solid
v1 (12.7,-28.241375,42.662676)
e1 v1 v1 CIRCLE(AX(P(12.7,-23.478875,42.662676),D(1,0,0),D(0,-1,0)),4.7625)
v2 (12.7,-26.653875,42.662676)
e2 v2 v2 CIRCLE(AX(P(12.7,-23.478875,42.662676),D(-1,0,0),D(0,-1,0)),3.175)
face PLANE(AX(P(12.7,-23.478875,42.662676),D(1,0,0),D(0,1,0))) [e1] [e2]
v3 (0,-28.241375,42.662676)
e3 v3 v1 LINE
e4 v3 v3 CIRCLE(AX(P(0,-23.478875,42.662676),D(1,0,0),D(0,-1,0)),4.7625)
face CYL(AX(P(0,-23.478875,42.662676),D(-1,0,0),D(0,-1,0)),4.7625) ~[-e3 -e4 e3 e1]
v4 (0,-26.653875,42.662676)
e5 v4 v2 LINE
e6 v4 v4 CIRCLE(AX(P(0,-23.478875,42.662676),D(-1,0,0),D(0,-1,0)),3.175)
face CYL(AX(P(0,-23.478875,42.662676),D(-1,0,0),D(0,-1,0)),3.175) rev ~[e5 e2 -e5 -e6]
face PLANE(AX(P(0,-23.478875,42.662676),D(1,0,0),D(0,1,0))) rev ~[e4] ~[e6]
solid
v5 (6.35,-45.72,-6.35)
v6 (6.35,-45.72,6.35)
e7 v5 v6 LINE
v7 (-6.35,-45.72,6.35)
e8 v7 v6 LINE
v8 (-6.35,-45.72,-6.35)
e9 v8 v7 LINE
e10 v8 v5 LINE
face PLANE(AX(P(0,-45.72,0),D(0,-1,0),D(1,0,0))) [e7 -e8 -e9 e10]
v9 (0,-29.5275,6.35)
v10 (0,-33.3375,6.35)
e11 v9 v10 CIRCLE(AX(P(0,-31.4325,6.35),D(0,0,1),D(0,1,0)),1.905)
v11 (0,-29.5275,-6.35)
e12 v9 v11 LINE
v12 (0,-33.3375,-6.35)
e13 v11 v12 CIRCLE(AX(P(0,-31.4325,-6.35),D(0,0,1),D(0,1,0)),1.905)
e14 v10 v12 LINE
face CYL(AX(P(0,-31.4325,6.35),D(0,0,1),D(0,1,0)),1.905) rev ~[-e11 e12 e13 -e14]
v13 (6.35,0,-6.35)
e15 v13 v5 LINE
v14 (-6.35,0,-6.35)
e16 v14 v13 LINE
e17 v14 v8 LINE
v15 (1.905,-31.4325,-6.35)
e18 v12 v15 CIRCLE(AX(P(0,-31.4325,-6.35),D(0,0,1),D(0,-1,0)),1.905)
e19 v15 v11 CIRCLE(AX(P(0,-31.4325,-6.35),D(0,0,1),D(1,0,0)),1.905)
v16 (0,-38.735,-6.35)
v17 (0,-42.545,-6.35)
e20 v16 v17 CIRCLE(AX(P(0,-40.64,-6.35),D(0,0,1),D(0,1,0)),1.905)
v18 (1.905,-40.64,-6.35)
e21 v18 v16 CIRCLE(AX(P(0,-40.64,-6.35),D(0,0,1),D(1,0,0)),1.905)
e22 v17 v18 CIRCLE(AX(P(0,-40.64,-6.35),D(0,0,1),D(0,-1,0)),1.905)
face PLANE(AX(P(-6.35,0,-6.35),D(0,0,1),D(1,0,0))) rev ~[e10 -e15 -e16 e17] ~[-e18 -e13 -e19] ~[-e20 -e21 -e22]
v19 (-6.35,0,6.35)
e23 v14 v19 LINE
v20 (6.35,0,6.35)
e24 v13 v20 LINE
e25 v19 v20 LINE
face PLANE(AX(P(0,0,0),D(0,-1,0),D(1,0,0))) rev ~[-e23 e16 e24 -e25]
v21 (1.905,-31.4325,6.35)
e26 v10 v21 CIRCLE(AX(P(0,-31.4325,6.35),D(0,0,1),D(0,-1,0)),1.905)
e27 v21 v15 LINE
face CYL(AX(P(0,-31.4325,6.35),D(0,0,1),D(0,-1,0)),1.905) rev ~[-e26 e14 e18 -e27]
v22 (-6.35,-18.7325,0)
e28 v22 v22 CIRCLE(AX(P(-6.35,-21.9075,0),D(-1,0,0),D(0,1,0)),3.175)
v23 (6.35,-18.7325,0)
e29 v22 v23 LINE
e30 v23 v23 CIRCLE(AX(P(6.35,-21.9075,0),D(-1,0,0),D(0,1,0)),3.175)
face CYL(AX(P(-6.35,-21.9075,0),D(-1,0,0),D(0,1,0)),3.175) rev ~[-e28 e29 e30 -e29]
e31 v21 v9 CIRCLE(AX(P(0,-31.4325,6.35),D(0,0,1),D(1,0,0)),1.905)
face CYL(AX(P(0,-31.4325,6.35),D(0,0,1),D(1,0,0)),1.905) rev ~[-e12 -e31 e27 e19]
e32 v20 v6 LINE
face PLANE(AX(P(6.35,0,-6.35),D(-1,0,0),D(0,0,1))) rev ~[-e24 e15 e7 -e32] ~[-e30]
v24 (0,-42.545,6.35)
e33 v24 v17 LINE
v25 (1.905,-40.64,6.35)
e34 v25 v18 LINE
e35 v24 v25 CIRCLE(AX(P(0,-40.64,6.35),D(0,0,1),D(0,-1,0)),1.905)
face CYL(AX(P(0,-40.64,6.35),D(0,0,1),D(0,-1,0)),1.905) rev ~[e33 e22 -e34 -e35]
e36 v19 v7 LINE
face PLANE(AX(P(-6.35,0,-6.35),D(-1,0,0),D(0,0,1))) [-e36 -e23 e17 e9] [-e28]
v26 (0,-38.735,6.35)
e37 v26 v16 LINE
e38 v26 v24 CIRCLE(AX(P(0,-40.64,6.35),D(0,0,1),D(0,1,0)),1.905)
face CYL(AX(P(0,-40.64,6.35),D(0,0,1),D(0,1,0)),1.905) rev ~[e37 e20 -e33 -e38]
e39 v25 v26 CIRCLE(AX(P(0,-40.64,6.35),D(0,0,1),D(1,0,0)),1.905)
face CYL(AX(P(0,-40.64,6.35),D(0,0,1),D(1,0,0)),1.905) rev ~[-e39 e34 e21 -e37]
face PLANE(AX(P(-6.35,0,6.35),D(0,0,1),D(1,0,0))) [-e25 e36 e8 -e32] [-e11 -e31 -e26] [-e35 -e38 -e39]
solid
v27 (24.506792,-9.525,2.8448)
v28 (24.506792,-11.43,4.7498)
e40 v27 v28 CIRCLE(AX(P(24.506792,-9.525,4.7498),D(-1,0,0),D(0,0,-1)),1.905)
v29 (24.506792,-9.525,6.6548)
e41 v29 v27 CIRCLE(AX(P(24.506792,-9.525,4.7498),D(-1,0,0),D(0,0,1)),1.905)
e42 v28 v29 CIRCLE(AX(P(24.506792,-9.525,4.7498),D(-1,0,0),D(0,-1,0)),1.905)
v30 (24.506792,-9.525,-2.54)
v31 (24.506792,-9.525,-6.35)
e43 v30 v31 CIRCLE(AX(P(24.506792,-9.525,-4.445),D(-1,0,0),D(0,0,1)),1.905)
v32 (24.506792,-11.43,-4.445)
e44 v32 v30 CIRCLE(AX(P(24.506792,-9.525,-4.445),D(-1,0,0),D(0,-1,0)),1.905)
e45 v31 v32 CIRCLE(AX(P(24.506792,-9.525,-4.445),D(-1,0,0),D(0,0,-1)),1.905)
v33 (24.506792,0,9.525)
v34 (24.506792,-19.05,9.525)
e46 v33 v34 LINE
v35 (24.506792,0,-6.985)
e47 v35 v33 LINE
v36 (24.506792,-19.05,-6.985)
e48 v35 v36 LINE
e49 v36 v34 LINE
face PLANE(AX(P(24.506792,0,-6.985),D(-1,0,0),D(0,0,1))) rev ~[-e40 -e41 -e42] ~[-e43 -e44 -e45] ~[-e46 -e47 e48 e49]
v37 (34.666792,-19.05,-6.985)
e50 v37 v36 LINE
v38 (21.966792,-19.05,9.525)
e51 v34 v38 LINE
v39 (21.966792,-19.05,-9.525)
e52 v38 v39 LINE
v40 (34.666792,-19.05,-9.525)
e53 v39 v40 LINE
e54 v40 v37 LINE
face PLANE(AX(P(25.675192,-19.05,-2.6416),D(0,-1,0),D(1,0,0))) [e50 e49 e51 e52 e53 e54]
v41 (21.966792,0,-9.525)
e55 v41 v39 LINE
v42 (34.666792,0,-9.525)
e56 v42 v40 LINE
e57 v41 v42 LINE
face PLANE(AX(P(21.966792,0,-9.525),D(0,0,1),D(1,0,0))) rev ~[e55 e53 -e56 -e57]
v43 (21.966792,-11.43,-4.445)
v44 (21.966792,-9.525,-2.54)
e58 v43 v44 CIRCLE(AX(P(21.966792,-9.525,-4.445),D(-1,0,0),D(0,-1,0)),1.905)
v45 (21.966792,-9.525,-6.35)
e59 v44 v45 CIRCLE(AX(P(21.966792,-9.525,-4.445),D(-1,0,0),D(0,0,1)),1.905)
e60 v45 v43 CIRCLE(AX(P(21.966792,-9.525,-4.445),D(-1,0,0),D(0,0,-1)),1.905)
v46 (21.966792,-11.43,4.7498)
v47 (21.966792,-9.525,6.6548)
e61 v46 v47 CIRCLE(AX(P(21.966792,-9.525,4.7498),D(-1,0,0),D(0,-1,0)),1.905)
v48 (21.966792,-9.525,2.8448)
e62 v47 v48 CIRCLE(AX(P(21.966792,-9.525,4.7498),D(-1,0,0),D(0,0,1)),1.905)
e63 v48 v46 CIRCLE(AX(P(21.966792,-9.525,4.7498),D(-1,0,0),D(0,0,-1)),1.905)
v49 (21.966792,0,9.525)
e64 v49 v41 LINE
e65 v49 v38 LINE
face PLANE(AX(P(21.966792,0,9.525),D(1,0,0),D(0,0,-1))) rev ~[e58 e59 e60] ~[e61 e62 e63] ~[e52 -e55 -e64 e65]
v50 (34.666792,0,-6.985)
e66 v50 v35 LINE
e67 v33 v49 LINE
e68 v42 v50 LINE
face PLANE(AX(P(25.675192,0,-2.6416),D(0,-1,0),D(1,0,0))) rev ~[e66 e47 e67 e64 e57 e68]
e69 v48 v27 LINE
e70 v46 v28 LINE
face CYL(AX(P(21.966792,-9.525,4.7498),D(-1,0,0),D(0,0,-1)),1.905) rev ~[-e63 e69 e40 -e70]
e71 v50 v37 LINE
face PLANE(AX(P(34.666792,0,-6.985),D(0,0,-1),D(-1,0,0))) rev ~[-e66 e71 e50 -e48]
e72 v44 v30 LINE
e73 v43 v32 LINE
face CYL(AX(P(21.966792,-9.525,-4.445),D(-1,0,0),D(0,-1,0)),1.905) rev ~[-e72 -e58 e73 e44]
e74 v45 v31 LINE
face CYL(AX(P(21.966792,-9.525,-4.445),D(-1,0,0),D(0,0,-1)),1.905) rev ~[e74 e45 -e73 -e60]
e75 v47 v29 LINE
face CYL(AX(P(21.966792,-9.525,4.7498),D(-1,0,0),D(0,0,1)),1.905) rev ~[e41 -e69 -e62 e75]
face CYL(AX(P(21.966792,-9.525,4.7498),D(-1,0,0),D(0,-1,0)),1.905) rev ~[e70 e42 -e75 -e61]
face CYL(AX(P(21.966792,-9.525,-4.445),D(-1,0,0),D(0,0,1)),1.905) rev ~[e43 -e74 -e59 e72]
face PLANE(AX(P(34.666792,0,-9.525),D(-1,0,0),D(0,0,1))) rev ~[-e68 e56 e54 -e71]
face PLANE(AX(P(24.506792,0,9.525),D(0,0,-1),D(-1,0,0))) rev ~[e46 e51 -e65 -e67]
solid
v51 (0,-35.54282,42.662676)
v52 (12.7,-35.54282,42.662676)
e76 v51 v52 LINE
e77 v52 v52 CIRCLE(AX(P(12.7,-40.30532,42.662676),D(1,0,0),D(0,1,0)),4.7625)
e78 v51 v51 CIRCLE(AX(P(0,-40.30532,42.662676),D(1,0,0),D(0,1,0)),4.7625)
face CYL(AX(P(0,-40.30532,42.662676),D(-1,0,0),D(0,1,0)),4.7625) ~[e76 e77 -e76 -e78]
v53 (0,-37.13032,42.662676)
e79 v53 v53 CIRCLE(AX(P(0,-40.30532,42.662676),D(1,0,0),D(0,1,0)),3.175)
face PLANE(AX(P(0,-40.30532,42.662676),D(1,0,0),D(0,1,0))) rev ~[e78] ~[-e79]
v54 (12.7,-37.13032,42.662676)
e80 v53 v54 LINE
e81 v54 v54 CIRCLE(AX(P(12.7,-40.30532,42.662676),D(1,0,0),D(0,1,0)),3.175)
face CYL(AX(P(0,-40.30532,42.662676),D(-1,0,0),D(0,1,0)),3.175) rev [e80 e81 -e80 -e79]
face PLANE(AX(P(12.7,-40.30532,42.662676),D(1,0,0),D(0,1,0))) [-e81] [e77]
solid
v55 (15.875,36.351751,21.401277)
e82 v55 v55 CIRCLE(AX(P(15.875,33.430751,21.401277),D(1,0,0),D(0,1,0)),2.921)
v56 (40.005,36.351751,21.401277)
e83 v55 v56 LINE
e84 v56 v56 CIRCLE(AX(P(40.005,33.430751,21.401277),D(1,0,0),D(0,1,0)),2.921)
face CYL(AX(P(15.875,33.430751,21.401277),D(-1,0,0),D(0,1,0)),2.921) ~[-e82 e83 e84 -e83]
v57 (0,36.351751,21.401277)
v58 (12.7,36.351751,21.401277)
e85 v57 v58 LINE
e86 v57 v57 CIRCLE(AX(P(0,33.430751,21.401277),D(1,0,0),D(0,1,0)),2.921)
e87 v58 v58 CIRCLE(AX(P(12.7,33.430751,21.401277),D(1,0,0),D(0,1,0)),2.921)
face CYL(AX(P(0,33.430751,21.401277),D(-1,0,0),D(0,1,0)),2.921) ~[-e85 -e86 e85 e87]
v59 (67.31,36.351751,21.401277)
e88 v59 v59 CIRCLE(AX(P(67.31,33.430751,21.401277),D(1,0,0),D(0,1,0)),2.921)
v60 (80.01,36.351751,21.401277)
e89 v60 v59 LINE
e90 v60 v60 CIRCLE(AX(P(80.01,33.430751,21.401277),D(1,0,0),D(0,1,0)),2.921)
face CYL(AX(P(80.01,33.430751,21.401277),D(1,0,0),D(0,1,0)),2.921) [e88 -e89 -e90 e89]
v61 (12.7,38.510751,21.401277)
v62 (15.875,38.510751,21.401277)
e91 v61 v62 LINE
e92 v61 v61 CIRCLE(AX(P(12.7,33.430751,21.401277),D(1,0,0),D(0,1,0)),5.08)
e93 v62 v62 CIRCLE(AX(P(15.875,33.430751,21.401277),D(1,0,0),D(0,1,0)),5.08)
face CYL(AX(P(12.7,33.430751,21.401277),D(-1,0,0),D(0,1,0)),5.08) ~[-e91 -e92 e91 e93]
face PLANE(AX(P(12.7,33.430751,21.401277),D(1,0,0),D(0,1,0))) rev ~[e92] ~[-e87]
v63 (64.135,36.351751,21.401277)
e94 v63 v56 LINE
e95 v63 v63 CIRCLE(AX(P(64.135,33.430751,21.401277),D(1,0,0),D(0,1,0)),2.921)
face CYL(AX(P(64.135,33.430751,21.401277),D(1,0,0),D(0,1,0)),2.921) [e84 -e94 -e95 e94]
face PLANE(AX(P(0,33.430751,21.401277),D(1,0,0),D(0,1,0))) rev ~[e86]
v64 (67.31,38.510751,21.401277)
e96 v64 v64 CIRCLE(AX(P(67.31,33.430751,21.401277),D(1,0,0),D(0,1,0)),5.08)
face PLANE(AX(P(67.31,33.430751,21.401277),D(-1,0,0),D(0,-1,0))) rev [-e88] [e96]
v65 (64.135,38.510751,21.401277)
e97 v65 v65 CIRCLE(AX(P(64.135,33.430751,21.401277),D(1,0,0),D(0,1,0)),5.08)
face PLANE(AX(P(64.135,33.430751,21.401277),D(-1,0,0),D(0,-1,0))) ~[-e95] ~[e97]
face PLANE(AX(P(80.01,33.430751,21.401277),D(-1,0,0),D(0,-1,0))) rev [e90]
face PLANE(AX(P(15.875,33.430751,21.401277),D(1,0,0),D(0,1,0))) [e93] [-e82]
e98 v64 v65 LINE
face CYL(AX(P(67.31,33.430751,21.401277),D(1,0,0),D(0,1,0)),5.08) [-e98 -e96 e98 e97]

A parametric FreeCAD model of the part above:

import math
import FreeCAD as App
import Part
import Sketcher

V = App.Vector
Q = App.Units.Quantity

doc = App.newDocument("Part")
body = doc.addObject("PartDesign::Body", "Body")

# Sketch on XZ plane
sketch1 = body.newObject("Sketcher::SketchObject", "Sketch")
sketch1.AttachmentSupport = (doc.getObject("XZ_Plane"), [""])
sketch1.MapMode = "FlatFace"
sketch1.addGeometry([
    Part.LineSegment(V(-6, 6, 0), V(-6, -6, 0)),
    Part.LineSegment(V(-6, -6, 0), V(6, -6, 0)),
    Part.LineSegment(V(6, -6, 0), V(6, 6, 0)),
    Part.LineSegment(V(6, 6, 0), V(-6, 6, 0)),
], False)
sketch1.addConstraint([
    Sketcher.Constraint("Coincident", 0, 2, 1, 1),
    Sketcher.Constraint("Coincident", 1, 2, 2, 1),
    Sketcher.Constraint("Coincident", 2, 2, 3, 1),
    Sketcher.Constraint("Coincident", 3, 2, 0, 1),
    Sketcher.Constraint("Vertical", 0),
    Sketcher.Constraint("Horizontal", 1),
    Sketcher.Constraint("Vertical", 2),
    Sketcher.Constraint("Horizontal", 3),
    Sketcher.Constraint("Symmetric", 0, 2, 2, 2, -1, 1),
    Sketcher.Constraint("Equal", 3, 0),
    Sketcher.Constraint("DistanceX", 1, 1, 1, 2, Q("0.5 in")),
])
pad1 = body.newObject("PartDesign::Pad", "Pad")
pad1.Profile = sketch1
pad1.Length = Q("1.8 in")

# Sketch on XY plane
sketch2 = body.newObject("Sketcher::SketchObject", "Sketch001")
sketch2.AttachmentSupport = (doc.getObject("XY_Plane"), [""])
sketch2.MapMode = "FlatFace"
sketch2.AttachmentOffset = App.Placement(V(0, 0, 0.25 * 25.4), App.Rotation())
sketch2.addGeometry([
    Part.ArcOfCircle(Part.Circle(V(0, -40.6, 0), V(0, 0, 1), 1.9), math.radians(90), math.radians(270)),  # 0
    Part.ArcOfCircle(Part.Circle(V(0, -40.6, 0), V(0, 0, 1), 1.9), math.radians(-90), math.radians(0)),  # 1
    Part.ArcOfCircle(Part.Circle(V(0, -40.6, 0), V(0, 0, 1), 1.9), math.radians(0), math.radians(90)),  # 2
    Part.ArcOfCircle(Part.Circle(V(0, -31.4, 0), V(0, 0, 1), 1.9), math.radians(90), math.radians(270)),  # 3
    Part.ArcOfCircle(Part.Circle(V(0, -31.4, 0), V(0, 0, 1), 1.9), math.radians(-90), math.radians(0)),  # 4
    Part.ArcOfCircle(Part.Circle(V(0, -31.4, 0), V(0, 0, 1), 1.9), math.radians(0), math.radians(90)),  # 5
], False)
sketch2.addConstraint([
    Sketcher.Constraint("Tangent", 0, 2, 1, 1),
    Sketcher.Constraint("Tangent", 1, 2, 2, 1),
    Sketcher.Constraint("Tangent", 2, 2, 0, 1),
    Sketcher.Constraint("Tangent", 3, 2, 4, 1),
    Sketcher.Constraint("Tangent", 4, 2, 5, 1),
    Sketcher.Constraint("Tangent", 5, 2, 3, 1),
    Sketcher.Constraint("Equal", 2, 3),
    Sketcher.Constraint("PointOnObject", 0, 3, -2),
    Sketcher.Constraint("PointOnObject", 3, 3, -2),
    Sketcher.Constraint("PointOnObject", 0, 2, -2),
    Sketcher.Constraint("PointOnObject", 2, 2, -2),
    Sketcher.Constraint("PointOnObject", 3, 2, -2),
    Sketcher.Constraint("PointOnObject", 5, 2, -2),
    Sketcher.Constraint("Horizontal", 2, 3, 1, 2),
    Sketcher.Constraint("Horizontal", 5, 3, 4, 2),
    Sketcher.Constraint("Radius", 0, Q("0.075 in")),
    Sketcher.Constraint("DistanceY", 0, 3, -1, 1, Q("1.6 in")),
    Sketcher.Constraint("DistanceY", 3, 2, -1, 1, Q("1.3125 in")),
])
pocket1 = body.newObject("PartDesign::Pocket", "Pocket")
pocket1.Profile = sketch2
pocket1.Length = Q("1 in")

# Sketch on YZ plane
sketch3 = body.newObject("Sketcher::SketchObject", "Sketch002")
sketch3.AttachmentSupport = (doc.getObject("YZ_Plane"), [""])
sketch3.MapMode = "FlatFace"
sketch3.AttachmentOffset = App.Placement(V(0, 0, -0.25 * 25.4), App.Rotation())
sketch3.addGeometry(Part.Circle(V(-21.9, 0, 0), V(0, 0, 1), 3.2), False)
sketch3.addConstraint([
    Sketcher.Constraint("PointOnObject", 0, 3, -1),
    Sketcher.Constraint("Diameter", 0, Q("0.25 in")),
    Sketcher.Constraint("DistanceX", 0, 3, -1, 1, Q("0.8625 in")),
])
pocket2 = body.newObject("PartDesign::Pocket", "Pocket001")
pocket2.Profile = sketch3
pocket2.Length = Q("1 in")
pocket2.Reversed = True
body2 = doc.addObject("PartDesign::Body", "Body001")

# Sketch on XZ plane
sketch4 = body2.newObject("Sketcher::SketchObject", "Sketch003")
sketch4.AttachmentSupport = (doc.getObject("XZ_Plane001"), [""])
sketch4.MapMode = "FlatFace"
sketch4.addGeometry([
    Part.LineSegment(V(24.5, 9.5, 0), V(22, 9.5, 0)),  # 0
    Part.LineSegment(V(22, 9.5, 0), V(22, -9.5, 0)),  # 1
    Part.LineSegment(V(22, -9.5, 0), V(34.7, -9.5, 0)),  # 2
    Part.LineSegment(V(34.7, -9.5, 0), V(34.7, -7, 0)),  # 3
    Part.LineSegment(V(34.7, -7, 0), V(24.5, -7, 0)),  # 4
    Part.LineSegment(V(24.5, -7, 0), V(24.5, 9.5, 0)),  # 5
], False)
sketch4.addConstraint([
    Sketcher.Constraint("Coincident", 0, 2, 1, 1),
    Sketcher.Constraint("Coincident", 1, 2, 2, 1),
    Sketcher.Constraint("Coincident", 2, 2, 3, 1),
    Sketcher.Constraint("Coincident", 3, 2, 4, 1),
    Sketcher.Constraint("Coincident", 4, 2, 5, 1),
    Sketcher.Constraint("Coincident", 5, 2, 0, 1),
    Sketcher.Constraint("Horizontal", 0),
    Sketcher.Constraint("Vertical", 1),
    Sketcher.Constraint("Horizontal", 2),
    Sketcher.Constraint("Vertical", 3),
    Sketcher.Constraint("Horizontal", 4),
    Sketcher.Constraint("Vertical", 5),
    Sketcher.Constraint("Equal", 0, 3),
    Sketcher.Constraint("DistanceX", 0, 2, 0, 1, Q("0.1 in")),
    Sketcher.Constraint("DistanceX", 2, 1, 2, 2, Q("0.5 in")),
    Sketcher.Constraint("DistanceY", 1, 2, 1, 1, Q("0.75 in")),
    Sketcher.Constraint("DistanceY", -1, 1, 0, 2, Q("0.375 in")),
    Sketcher.Constraint("DistanceX", -1, 1, 0, 2, Q("21.966792 mm")),
])
pad2 = body2.newObject("PartDesign::Pad", "Pad001")
pad2.Profile = sketch4
pad2.Length = Q("0.75 in")

# Sketch on YZ plane
sketch5 = body2.newObject("Sketcher::SketchObject", "Sketch004")
sketch5.AttachmentSupport = (doc.getObject("YZ_Plane001"), [""])
sketch5.MapMode = "FlatFace"
sketch5.AttachmentOffset = App.Placement(V(0, 0, 21.966792), App.Rotation())
sketch5.addGeometry([
    Part.ArcOfCircle(Part.Circle(V(-9.5, 4.7, 0), V(0, 0, 1), 1.9), math.radians(90), math.radians(180)),  # 0
    Part.ArcOfCircle(Part.Circle(V(-9.5, 4.7, 0), V(0, 0, 1), 1.9), math.radians(-90), math.radians(90)),  # 1
    Part.ArcOfCircle(Part.Circle(V(-9.5, 4.7, 0), V(0, 0, 1), 1.9), math.radians(180), math.radians(270)),  # 2
    Part.ArcOfCircle(Part.Circle(V(-9.5, -4.4, 0), V(0, 0, 1), 1.9), math.radians(90), math.radians(180)),  # 3
    Part.ArcOfCircle(Part.Circle(V(-9.5, -4.4, 0), V(0, 0, 1), 1.9), math.radians(-90), math.radians(90)),  # 4
    Part.ArcOfCircle(Part.Circle(V(-9.5, -4.4, 0), V(0, 0, 1), 1.9), math.radians(180), math.radians(270)),  # 5
], False)
sketch5.addConstraint([
    Sketcher.Constraint("Tangent", 0, 1, 1, 2),
    Sketcher.Constraint("Tangent", 1, 1, 2, 2),
    Sketcher.Constraint("Tangent", 2, 1, 0, 2),
    Sketcher.Constraint("Tangent", 3, 1, 4, 2),
    Sketcher.Constraint("Tangent", 4, 1, 5, 2),
    Sketcher.Constraint("Tangent", 5, 1, 3, 2),
    Sketcher.Constraint("Equal", 2, 3),
    Sketcher.Constraint("Horizontal", 1, 3, 2, 1),
    Sketcher.Constraint("Horizontal", 4, 3, 5, 1),
    Sketcher.Constraint("Vertical", 2, 3, 3, 3),
    Sketcher.Constraint("Vertical", 5, 3, 0, 1),
    Sketcher.Constraint("Vertical", 0, 1, 1, 1),
    Sketcher.Constraint("Vertical", 1, 1, 3, 1),
    Sketcher.Constraint("Vertical", 3, 1, 4, 1),
    Sketcher.Constraint("Radius", 0, Q("0.075 in")),
    Sketcher.Constraint("DistanceY", 3, 1, -1, 1, Q("0.1 in")),
    Sketcher.Constraint("DistanceX", 2, 1, -1, 1, Q("0.45 in")),
    Sketcher.Constraint("DistanceY", -1, 1, 0, 3, Q("0.187 in")),
])
pocket3 = body2.newObject("PartDesign::Pocket", "Pocket002")
pocket3.Profile = sketch5
pocket3.Length = Q("1 in")
pocket3.Reversed = True
body3 = doc.addObject("PartDesign::Body", "Body002")

# Sketch on YZ plane
sketch6 = body3.newObject("Sketcher::SketchObject", "Sketch005")
sketch6.AttachmentSupport = (doc.getObject("YZ_Plane002"), [""])
sketch6.MapMode = "FlatFace"
sketch6.addGeometry([
    Part.Circle(V(-40.3, 42.7, 0), V(0, 0, 1), 4.8),
    Part.Circle(V(-40.3, 42.7, 0), V(0, 0, 1), 3.2),
], False)
sketch6.addConstraint([
    Sketcher.Constraint("Coincident", 1, 3, 0, 3),
    Sketcher.Constraint("Diameter", 1, Q("0.25 in")),
    Sketcher.Constraint("Diameter", 0, Q("0.375 in")),
    Sketcher.Constraint("DistanceX", 0, 3, -1, 1, Q("40.30532 mm")),
    Sketcher.Constraint("DistanceY", -1, 1, 0, 3, Q("42.662676 mm")),
])
pad3 = body3.newObject("PartDesign::Pad", "Pad002")
pad3.Profile = sketch6
pad3.Length = Q("0.5 in")
body4 = doc.addObject("PartDesign::Body", "Body003")

# Sketch on YZ plane
sketch7 = body4.newObject("Sketcher::SketchObject", "Sketch006")
sketch7.AttachmentSupport = (doc.getObject("YZ_Plane003"), [""])
sketch7.MapMode = "FlatFace"
sketch7.addGeometry([
    Part.Circle(V(-23.5, 42.7, 0), V(0, 0, 1), 4.8),
    Part.Circle(V(-23.5, 42.7, 0), V(0, 0, 1), 3.2),
], False)
sketch7.addConstraint([
    Sketcher.Constraint("Coincident", 1, 3, 0, 3),
    Sketcher.Constraint("Diameter", 1, Q("0.25 in")),
    Sketcher.Constraint("Diameter", 0, Q("0.375 in")),
    Sketcher.Constraint("DistanceX", 0, 3, -1, 1, Q("23.478875 mm")),
    Sketcher.Constraint("DistanceY", -1, 1, 0, 3, Q("42.662676 mm")),
])
pad4 = body4.newObject("PartDesign::Pad", "Pad003")
pad4.Profile = sketch7
pad4.Length = Q("0.5 in")
body5 = doc.addObject("PartDesign::Body", "Body004")

# Sketch on YZ plane
sketch8 = body5.newObject("Sketcher::SketchObject", "Sketch007")
sketch8.AttachmentSupport = (doc.getObject("YZ_Plane004"), [""])
sketch8.MapMode = "FlatFace"
sketch8.addGeometry(Part.Circle(V(33.4, 21.4, 0), V(0, 0, 1), 2.9), False)
sketch8.addConstraint([
    Sketcher.Constraint("Diameter", 0, Q("0.23 in")),
    Sketcher.Constraint("DistanceX", -1, 1, 0, 3, Q("33.430751 mm")),
    Sketcher.Constraint("DistanceY", -1, 1, 0, 3, Q("21.401277 mm")),
])
pad5 = body5.newObject("PartDesign::Pad", "Pad004")
pad5.Profile = sketch8
pad5.Length = Q("0.5 in")

# Sketch on YZ plane
sketch9 = body5.newObject("Sketcher::SketchObject", "Sketch008")
sketch9.AttachmentSupport = (doc.getObject("YZ_Plane004"), [""])
sketch9.MapMode = "FlatFace"
sketch9.AttachmentOffset = App.Placement(V(0, 0, 0.5 * 25.4), App.Rotation())
sketch9.addGeometry(Part.Circle(V(33, 21, 0), V(0, 0, 1), 5), False)
sketch9.addConstraint([
    Sketcher.Constraint("Diameter", 0, Q("0.4 in")),
    Sketcher.Constraint("DistanceX", -1, 1, 0, 3, Q("33.430751 mm")),
    Sketcher.Constraint("DistanceY", -1, 1, 0, 3, Q("21.401277 mm")),
])
pad6 = body5.newObject("PartDesign::Pad", "Pad005")
pad6.Profile = sketch9
pad6.Length = Q("0.125 in")

# Sketch on YZ plane
sketch10 = body5.newObject("Sketcher::SketchObject", "Sketch009")
sketch10.AttachmentSupport = (doc.getObject("YZ_Plane004"), [""])
sketch10.MapMode = "FlatFace"
sketch10.AttachmentOffset = App.Placement(V(0, 0, 0.625 * 25.4), App.Rotation())
sketch10.addGeometry(Part.Circle(V(33.4, 21.4, 0), V(0, 0, 1), 2.9), False)
sketch10.addConstraint([
    Sketcher.Constraint("Diameter", 0, Q("0.23 in")),
    Sketcher.Constraint("DistanceX", -1, 1, 0, 3, Q("33.430751 mm")),
    Sketcher.Constraint("DistanceY", -1, 1, 0, 3, Q("21.401277 mm")),
])
pad7 = body5.newObject("PartDesign::Pad", "Pad006")
pad7.Profile = sketch10
pad7.Length = Q("0.95 in")
body6 = doc.addObject("PartDesign::Body", "Body005")
doc.recompute()

body6.BaseFeature = body5
doc.recompute()

mirroring = doc.addObject("Part::Mirroring", "Mirroring")
mirroring.Source = body5
mirroring.Base = V(40.005, 33.430751, 21.401277)
mirroring.Normal = V(1, 0, 0)
body7 = doc.addObject("PartDesign::Body", "Body006")
body7.BaseFeature = mirroring
boolean = body6.newObject("PartDesign::Boolean", "Boolean")
boolean.Type = "Fuse"
boolean.addObjects([body7])
doc.recompute()
mirroring.Visibility = False

doc.recompute()
